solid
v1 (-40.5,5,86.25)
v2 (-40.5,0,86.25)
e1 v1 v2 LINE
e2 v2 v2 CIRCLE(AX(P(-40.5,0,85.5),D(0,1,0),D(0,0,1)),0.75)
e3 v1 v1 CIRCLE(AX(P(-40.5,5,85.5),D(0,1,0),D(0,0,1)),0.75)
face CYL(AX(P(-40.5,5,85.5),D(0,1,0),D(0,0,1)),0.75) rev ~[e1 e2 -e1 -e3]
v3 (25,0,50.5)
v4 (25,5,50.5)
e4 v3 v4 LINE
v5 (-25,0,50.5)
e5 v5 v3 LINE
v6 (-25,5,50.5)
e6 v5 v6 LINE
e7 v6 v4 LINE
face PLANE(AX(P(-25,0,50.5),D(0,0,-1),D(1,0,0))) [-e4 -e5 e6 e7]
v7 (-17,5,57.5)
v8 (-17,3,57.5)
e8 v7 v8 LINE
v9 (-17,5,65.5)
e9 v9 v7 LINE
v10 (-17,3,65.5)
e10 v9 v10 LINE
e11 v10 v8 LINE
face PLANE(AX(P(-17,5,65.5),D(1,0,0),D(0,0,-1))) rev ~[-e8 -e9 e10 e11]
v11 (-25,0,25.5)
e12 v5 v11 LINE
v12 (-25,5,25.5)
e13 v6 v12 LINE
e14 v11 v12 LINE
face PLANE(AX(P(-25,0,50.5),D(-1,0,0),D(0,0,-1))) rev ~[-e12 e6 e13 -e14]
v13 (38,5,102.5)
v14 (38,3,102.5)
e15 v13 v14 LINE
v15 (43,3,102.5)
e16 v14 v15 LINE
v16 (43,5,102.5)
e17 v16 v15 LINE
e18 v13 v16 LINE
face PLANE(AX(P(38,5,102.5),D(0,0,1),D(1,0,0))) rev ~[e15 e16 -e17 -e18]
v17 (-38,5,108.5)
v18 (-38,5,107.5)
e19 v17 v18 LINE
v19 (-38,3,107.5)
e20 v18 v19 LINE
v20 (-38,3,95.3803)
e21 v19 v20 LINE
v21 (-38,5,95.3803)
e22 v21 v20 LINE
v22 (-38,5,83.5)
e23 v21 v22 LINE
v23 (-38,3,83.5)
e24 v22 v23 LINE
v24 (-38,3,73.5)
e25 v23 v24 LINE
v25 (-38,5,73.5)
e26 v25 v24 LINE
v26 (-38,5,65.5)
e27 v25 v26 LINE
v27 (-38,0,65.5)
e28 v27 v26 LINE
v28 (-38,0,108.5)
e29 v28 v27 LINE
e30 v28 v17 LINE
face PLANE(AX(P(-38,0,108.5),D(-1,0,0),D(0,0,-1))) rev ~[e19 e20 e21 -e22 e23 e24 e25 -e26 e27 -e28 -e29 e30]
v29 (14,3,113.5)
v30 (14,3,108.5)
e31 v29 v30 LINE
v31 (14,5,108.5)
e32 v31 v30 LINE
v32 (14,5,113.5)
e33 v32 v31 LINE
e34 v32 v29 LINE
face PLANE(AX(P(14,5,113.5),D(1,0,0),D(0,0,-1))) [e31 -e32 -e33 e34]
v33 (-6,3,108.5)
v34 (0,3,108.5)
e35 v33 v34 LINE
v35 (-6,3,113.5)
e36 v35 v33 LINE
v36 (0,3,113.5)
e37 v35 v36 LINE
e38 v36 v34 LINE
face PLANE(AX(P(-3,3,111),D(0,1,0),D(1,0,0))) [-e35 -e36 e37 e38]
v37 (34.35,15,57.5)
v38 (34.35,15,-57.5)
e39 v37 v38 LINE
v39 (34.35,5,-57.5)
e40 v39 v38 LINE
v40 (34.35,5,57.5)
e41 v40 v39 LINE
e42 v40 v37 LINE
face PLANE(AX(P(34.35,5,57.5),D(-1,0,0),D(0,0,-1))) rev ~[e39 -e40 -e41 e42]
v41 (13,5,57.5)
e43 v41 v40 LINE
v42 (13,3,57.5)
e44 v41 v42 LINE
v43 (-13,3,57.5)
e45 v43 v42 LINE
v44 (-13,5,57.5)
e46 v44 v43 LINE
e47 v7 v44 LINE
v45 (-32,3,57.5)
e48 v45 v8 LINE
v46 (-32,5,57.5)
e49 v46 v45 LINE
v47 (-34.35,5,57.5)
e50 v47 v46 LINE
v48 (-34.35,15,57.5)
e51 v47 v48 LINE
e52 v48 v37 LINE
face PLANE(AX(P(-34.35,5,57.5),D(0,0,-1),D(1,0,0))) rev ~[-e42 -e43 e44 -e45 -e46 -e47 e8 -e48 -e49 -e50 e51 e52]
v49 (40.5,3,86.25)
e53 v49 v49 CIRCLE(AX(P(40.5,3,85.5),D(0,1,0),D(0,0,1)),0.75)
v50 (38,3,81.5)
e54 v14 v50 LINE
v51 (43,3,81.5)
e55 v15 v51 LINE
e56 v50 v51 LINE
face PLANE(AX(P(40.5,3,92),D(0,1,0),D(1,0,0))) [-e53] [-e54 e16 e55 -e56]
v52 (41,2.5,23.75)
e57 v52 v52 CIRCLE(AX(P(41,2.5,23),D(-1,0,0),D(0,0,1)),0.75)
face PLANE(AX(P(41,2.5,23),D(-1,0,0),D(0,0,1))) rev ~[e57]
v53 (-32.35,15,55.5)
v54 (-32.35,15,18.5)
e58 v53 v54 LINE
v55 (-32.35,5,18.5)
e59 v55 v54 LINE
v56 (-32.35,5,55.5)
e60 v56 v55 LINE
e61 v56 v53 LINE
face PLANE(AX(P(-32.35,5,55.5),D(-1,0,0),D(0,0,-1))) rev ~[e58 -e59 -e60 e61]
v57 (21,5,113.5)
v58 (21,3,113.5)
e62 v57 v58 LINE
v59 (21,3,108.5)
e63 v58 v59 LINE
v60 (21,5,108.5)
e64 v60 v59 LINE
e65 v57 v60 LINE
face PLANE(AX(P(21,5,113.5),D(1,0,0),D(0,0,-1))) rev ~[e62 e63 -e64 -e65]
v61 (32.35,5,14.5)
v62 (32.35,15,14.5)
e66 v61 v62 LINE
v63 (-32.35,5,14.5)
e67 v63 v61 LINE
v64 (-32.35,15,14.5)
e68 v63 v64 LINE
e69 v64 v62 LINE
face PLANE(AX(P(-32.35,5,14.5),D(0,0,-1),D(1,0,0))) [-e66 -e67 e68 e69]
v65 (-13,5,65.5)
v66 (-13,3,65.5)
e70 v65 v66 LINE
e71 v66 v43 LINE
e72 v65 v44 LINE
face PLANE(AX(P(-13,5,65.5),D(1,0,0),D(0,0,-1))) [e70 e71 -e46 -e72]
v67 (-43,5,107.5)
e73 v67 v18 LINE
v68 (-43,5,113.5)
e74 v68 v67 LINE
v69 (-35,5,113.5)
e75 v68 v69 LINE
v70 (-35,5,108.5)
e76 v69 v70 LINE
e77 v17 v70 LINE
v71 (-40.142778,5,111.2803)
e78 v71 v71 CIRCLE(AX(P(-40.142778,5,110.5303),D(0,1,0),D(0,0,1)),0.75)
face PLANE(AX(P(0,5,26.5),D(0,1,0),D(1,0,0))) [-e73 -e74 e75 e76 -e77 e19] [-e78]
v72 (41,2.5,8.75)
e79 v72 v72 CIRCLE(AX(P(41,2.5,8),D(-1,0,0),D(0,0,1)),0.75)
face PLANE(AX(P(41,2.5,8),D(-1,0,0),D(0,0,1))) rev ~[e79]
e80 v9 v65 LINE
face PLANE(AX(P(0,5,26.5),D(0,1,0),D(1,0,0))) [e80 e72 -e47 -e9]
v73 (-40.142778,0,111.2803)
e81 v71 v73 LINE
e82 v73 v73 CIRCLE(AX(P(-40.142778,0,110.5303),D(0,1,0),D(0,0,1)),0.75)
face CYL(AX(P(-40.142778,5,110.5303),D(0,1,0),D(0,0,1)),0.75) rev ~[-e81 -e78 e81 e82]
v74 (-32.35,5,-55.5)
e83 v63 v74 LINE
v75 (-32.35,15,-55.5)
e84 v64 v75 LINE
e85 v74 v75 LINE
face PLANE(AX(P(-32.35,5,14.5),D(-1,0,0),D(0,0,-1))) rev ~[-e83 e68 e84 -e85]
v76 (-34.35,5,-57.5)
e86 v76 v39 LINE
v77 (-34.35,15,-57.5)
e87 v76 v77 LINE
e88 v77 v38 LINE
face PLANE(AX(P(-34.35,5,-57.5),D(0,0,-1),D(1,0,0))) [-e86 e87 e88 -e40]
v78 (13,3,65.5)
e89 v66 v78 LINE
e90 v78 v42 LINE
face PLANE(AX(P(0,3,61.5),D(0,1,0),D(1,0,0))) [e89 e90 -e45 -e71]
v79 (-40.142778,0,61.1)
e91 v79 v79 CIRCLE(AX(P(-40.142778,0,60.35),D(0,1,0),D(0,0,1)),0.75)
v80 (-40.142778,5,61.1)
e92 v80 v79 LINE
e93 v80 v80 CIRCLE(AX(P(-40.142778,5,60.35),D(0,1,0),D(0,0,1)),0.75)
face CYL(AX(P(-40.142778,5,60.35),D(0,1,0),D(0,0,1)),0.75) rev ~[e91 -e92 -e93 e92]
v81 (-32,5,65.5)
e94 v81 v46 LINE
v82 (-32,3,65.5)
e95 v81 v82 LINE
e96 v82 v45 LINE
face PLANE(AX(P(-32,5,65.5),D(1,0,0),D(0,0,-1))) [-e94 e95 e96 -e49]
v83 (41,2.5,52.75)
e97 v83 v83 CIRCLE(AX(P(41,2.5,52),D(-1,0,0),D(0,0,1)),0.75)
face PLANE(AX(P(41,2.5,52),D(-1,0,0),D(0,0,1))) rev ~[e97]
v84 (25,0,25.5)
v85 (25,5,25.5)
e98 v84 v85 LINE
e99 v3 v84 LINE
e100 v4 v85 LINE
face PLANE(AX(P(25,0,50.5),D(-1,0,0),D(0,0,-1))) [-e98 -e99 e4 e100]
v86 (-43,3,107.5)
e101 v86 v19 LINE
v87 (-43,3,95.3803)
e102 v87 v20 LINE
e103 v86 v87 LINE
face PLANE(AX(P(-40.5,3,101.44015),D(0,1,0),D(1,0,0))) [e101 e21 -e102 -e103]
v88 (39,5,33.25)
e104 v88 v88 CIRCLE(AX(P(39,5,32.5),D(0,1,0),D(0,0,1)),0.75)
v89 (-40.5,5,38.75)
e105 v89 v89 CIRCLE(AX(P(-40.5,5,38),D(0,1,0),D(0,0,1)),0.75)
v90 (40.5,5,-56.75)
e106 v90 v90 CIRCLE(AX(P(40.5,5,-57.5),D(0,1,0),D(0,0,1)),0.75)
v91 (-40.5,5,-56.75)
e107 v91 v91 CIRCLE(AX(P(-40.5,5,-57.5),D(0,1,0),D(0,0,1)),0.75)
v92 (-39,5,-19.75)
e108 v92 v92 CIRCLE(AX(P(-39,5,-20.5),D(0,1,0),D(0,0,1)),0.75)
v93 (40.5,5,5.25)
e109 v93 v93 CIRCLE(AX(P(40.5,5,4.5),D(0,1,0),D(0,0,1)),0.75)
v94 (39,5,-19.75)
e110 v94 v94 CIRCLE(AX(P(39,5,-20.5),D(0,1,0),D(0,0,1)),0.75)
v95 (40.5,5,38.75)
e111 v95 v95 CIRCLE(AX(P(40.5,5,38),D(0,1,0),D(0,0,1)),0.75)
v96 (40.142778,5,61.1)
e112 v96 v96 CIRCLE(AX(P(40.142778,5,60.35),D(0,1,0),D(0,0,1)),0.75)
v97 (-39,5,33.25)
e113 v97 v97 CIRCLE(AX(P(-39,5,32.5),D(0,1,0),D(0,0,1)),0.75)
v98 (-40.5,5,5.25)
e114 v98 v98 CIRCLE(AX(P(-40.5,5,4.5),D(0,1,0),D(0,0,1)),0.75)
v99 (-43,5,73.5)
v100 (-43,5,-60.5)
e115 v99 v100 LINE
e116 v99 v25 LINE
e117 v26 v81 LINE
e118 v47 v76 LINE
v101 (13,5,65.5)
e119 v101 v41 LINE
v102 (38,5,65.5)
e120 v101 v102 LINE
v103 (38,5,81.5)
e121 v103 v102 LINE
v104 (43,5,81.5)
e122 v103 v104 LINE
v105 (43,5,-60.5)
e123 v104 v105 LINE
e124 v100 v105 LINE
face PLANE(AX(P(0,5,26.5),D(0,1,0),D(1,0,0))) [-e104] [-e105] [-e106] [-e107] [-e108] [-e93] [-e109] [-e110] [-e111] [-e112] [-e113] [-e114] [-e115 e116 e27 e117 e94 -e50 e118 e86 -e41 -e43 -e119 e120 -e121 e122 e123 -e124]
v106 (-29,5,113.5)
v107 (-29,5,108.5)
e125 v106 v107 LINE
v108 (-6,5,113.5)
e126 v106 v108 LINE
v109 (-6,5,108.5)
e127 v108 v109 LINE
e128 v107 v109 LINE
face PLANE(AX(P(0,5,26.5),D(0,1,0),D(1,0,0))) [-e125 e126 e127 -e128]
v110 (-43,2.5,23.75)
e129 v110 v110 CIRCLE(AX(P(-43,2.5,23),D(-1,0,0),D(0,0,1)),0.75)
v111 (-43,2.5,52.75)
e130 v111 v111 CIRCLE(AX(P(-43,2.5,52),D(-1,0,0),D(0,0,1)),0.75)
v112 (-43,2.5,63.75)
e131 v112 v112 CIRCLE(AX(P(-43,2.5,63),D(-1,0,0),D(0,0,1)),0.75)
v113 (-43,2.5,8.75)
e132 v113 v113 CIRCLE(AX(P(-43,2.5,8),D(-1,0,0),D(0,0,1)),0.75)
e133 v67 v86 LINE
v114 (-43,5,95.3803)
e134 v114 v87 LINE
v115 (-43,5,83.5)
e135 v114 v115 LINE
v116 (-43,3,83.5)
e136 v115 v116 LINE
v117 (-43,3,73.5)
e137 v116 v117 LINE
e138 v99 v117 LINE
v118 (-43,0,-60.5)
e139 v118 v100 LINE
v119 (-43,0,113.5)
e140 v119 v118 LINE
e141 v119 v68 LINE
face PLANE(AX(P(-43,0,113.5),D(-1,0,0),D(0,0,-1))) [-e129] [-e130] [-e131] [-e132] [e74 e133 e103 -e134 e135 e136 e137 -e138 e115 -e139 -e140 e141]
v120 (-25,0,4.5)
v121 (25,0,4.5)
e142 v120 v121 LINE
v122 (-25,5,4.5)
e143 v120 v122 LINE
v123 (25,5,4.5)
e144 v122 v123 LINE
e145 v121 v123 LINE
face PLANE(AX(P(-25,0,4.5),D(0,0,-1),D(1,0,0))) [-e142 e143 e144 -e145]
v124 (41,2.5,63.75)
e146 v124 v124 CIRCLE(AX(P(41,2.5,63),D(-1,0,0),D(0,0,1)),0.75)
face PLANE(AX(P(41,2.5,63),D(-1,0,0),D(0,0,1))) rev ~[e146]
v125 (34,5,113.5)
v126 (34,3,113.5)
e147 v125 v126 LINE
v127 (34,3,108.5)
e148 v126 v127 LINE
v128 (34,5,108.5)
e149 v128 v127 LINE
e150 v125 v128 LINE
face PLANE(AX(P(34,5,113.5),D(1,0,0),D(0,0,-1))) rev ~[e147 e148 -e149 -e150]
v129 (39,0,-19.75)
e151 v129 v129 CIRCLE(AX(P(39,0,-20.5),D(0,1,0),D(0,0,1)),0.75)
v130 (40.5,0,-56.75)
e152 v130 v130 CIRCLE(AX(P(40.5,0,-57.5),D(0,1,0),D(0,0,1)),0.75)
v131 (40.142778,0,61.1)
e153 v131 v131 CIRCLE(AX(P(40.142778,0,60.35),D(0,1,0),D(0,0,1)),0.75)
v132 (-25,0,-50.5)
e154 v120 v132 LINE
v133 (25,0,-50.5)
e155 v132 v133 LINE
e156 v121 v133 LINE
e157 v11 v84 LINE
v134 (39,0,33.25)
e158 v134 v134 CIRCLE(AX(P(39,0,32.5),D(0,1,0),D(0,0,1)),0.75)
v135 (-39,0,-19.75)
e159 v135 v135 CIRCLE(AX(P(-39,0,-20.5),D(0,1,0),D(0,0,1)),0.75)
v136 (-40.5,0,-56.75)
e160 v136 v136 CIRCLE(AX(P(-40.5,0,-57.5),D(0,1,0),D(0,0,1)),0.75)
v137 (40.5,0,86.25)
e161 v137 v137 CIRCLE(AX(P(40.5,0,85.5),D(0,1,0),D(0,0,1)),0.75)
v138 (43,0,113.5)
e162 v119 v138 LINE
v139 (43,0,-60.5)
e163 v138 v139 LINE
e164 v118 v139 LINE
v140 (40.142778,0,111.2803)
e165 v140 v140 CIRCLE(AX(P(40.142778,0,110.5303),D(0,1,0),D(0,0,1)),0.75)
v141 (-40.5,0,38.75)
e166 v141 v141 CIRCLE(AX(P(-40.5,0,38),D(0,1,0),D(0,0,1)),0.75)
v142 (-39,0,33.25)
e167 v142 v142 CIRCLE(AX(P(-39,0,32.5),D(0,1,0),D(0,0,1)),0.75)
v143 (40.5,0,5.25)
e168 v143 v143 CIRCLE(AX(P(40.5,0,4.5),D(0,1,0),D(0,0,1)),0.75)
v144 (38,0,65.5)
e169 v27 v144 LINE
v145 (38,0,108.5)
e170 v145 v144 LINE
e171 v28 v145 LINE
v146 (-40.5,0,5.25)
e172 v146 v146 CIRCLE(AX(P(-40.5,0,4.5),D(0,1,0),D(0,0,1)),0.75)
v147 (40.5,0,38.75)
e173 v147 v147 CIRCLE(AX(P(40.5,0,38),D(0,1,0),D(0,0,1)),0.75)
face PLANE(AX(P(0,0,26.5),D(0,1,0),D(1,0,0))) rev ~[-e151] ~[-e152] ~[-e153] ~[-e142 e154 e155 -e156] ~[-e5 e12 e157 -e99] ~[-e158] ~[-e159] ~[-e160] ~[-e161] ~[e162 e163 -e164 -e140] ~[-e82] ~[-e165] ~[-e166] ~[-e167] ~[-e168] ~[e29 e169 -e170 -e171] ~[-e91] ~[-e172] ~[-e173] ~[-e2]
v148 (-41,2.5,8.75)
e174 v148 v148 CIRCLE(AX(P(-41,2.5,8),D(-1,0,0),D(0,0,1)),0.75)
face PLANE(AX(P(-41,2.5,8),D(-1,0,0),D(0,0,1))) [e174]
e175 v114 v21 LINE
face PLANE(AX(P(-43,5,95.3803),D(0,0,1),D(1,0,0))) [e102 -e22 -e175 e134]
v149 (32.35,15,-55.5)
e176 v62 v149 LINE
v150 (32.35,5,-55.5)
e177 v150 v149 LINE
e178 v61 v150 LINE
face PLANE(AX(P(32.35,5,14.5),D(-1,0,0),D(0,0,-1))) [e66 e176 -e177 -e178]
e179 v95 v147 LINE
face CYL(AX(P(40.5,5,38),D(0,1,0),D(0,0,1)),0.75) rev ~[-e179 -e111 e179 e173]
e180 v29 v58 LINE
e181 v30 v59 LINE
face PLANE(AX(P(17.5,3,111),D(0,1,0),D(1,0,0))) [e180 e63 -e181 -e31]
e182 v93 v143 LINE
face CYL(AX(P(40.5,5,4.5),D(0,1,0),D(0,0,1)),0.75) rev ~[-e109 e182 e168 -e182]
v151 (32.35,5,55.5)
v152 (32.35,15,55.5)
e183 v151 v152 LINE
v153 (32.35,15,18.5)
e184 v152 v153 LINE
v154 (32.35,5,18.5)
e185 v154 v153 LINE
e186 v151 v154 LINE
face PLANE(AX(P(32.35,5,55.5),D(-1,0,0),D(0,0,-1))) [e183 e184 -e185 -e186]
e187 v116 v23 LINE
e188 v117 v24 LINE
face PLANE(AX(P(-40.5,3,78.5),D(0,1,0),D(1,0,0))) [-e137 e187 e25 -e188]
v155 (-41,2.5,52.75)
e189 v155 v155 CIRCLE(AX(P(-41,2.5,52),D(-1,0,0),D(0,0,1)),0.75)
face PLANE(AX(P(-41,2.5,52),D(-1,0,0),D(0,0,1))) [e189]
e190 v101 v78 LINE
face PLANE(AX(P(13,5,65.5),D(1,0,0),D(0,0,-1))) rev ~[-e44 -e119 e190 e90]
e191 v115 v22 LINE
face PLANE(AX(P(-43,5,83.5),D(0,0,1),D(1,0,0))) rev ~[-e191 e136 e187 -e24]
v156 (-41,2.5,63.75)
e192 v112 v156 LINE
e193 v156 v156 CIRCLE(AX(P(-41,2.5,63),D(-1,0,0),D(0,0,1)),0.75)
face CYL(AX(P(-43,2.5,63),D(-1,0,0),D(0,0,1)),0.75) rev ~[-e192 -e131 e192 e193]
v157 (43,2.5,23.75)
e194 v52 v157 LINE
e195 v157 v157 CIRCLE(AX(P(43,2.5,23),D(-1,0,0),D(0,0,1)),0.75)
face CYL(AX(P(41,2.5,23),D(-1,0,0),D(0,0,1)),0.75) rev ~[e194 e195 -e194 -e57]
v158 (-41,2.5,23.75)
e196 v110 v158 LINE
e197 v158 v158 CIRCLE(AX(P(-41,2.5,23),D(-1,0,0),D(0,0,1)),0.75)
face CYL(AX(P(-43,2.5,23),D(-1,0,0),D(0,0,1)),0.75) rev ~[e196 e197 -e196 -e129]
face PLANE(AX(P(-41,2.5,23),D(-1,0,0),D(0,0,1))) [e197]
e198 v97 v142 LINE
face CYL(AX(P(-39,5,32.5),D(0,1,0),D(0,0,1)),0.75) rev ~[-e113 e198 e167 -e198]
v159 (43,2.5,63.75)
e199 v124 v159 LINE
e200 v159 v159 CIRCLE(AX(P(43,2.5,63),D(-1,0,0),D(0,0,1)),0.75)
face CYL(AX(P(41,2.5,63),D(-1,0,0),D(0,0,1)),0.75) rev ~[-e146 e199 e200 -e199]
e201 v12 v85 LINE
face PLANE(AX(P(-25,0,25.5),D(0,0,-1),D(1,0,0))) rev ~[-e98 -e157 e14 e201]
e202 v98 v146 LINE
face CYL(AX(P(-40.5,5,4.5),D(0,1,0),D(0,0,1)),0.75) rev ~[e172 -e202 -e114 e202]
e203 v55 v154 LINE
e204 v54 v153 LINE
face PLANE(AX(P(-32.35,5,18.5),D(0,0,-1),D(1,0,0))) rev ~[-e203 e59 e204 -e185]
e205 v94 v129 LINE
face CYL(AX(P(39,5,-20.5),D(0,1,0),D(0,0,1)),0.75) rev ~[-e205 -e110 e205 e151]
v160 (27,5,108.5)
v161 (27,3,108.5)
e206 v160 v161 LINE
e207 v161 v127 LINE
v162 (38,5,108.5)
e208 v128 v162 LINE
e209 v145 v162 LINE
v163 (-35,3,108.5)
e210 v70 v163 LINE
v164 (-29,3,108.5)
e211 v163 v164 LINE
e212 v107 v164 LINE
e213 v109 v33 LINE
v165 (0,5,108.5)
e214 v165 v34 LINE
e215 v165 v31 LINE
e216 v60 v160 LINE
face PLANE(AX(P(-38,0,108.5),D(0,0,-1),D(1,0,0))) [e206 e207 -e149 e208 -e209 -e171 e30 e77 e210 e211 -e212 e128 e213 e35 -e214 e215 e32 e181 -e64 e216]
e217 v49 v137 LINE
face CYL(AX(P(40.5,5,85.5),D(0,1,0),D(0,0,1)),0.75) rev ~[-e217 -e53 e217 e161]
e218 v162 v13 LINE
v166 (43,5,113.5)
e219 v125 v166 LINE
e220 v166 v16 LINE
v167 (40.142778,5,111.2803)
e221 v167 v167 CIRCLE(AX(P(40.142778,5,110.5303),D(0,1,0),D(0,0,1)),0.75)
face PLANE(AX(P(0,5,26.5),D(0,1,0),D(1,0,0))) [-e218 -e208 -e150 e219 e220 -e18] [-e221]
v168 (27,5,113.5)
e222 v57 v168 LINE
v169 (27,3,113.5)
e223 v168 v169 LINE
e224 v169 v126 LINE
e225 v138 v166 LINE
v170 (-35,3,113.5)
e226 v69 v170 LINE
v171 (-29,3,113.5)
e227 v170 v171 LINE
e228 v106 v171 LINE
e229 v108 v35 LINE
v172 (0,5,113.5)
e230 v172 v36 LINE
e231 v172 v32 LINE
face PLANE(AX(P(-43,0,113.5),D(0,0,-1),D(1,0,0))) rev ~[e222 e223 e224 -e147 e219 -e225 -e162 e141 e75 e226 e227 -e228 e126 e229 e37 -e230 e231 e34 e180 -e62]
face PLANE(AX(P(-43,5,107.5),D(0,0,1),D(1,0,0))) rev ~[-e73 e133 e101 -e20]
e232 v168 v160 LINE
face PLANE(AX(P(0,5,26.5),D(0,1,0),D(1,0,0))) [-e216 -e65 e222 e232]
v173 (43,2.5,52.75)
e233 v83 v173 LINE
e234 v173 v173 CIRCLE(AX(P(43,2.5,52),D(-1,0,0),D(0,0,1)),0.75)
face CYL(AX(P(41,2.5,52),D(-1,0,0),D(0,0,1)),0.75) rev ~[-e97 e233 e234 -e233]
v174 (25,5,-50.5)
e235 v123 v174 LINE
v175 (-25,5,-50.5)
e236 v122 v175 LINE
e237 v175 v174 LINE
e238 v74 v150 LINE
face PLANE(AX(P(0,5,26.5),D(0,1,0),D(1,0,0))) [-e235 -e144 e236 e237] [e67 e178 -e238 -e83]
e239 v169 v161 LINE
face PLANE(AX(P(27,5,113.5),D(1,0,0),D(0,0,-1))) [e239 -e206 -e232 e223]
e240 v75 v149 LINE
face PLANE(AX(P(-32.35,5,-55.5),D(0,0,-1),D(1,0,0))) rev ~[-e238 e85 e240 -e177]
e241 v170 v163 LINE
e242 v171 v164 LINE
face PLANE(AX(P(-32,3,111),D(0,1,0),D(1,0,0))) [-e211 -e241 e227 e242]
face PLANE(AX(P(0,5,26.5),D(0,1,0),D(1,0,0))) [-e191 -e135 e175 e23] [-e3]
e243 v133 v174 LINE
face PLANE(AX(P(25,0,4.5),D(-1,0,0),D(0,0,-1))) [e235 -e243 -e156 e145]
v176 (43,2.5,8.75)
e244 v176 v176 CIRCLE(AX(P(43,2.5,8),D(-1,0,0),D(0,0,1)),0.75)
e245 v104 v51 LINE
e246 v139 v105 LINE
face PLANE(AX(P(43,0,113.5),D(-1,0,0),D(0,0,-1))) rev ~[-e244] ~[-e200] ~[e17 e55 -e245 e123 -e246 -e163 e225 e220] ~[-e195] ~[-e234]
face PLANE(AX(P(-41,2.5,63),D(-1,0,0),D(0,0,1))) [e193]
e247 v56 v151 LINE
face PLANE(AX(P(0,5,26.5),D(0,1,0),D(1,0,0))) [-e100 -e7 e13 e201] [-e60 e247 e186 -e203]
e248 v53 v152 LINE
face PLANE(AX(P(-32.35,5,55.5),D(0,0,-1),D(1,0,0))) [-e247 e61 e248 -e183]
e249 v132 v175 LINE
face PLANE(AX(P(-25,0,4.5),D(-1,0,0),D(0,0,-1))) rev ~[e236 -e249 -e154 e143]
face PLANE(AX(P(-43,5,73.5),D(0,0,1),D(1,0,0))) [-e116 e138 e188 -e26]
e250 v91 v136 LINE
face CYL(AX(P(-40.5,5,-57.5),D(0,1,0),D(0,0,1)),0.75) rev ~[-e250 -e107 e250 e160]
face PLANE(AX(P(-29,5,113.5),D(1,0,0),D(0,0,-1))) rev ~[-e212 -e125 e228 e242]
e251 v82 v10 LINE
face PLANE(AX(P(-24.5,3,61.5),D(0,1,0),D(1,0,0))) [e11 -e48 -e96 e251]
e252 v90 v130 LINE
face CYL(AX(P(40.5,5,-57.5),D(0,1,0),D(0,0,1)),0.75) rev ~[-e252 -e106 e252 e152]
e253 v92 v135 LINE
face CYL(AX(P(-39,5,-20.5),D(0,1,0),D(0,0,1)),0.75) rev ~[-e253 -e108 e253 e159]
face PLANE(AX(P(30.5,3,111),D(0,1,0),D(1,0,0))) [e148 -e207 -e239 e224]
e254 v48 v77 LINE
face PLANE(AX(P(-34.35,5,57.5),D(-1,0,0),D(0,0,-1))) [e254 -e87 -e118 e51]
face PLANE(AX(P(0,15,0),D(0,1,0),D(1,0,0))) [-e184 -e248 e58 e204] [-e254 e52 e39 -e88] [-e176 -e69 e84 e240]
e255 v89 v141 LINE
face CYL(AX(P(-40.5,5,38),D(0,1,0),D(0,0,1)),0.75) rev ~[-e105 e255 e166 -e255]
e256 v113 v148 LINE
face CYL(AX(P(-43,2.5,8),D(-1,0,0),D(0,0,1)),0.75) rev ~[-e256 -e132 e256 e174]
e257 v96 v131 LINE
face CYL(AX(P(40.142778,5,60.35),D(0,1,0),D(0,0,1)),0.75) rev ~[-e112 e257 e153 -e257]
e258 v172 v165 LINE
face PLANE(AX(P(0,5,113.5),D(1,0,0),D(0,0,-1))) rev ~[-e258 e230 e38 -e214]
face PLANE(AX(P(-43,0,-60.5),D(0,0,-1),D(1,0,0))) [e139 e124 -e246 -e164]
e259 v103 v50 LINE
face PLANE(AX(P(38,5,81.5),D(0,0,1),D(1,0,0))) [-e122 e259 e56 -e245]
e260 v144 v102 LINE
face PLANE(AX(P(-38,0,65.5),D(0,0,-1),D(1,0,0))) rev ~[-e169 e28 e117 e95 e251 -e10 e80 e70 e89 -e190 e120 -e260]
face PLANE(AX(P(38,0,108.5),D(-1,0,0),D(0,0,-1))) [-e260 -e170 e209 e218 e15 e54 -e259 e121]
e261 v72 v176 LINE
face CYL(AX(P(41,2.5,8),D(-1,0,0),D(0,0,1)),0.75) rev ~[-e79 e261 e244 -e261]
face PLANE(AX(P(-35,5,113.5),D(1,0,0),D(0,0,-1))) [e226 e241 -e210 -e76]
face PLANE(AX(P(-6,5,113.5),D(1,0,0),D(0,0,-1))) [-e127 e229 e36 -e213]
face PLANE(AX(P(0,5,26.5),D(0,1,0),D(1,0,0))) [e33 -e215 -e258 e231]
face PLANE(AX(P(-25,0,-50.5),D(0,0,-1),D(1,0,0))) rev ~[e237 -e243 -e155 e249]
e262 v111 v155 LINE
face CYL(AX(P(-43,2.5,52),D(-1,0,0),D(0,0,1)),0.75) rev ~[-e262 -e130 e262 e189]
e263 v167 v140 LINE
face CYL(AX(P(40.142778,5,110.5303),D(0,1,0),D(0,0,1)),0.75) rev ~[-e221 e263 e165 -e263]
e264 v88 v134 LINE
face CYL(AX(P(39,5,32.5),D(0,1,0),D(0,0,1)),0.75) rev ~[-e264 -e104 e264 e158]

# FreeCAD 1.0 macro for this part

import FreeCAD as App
import Part
import Sketcher
from FreeCAD import Vector

doc = App.newDocument("Part")
body = doc.addObject("PartDesign::Body", "Body")

sketch1 = doc.addObject("Sketcher::SketchObject", "Sketch")
body.addObject(sketch1)
sketch1.AttachmentSupport = (doc.XZ_Plane, [""])
sketch1.MapMode = "FlatFace"
sketch1.addGeometry([
    Part.LineSegment(Vector(-43, -60, 0), Vector(-43, 114, 0)),
    Part.LineSegment(Vector(-43, 114, 0), Vector(43, 114, 0)),
    Part.LineSegment(Vector(43, 114, 0), Vector(43, -60, 0)),
    Part.LineSegment(Vector(43, -60, 0), Vector(-43, -60, 0)),
    Part.LineSegment(Vector(38, 108, 0), Vector(-38, 108, 0)),
    Part.LineSegment(Vector(-38, 108, 0), Vector(-38, 66, 0)),
    Part.LineSegment(Vector(-38, 66, 0), Vector(38, 66, 0)),
    Part.LineSegment(Vector(38, 66, 0), Vector(38, 108, 0)),
    Part.LineSegment(Vector(25, 50, 0), Vector(-25, 50, 0)),
    Part.LineSegment(Vector(-25, 50, 0), Vector(-25, 26, 0)),
    Part.LineSegment(Vector(-25, 26, 0), Vector(25, 26, 0)),
    Part.LineSegment(Vector(25, 26, 0), Vector(25, 50, 0)),
    Part.LineSegment(Vector(25, 4, 0), Vector(-25, 4, 0)),
    Part.LineSegment(Vector(-25, 4, 0), Vector(-25, -50, 0)),
    Part.LineSegment(Vector(-25, -50, 0), Vector(25, -50, 0)),
    Part.LineSegment(Vector(25, -50, 0), Vector(25, 4, 0)),
], False)
sketch1.addConstraint([
    Sketcher.Constraint("Coincident", 0, 2, 1, 1),
    Sketcher.Constraint("Coincident", 1, 2, 2, 1),
    Sketcher.Constraint("Coincident", 2, 2, 3, 1),
    Sketcher.Constraint("Coincident", 3, 2, 0, 1),
    Sketcher.Constraint("Coincident", 4, 2, 5, 1),
    Sketcher.Constraint("Coincident", 5, 2, 6, 1),
    Sketcher.Constraint("Coincident", 6, 2, 7, 1),
    Sketcher.Constraint("Coincident", 7, 2, 4, 1),
    Sketcher.Constraint("Coincident", 8, 2, 9, 1),
    Sketcher.Constraint("Coincident", 9, 2, 10, 1),
    Sketcher.Constraint("Coincident", 10, 2, 11, 1),
    Sketcher.Constraint("Coincident", 11, 2, 8, 1),
    Sketcher.Constraint("Coincident", 12, 2, 13, 1),
    Sketcher.Constraint("Coincident", 13, 2, 14, 1),
    Sketcher.Constraint("Coincident", 14, 2, 15, 1),
    Sketcher.Constraint("Coincident", 15, 2, 12, 1),
    Sketcher.Constraint("Vertical", 0),
    Sketcher.Constraint("Horizontal", 1),
    Sketcher.Constraint("Vertical", 2),
    Sketcher.Constraint("Horizontal", 3),
    Sketcher.Constraint("Horizontal", 4),
    Sketcher.Constraint("Vertical", 5),
    Sketcher.Constraint("Horizontal", 6),
    Sketcher.Constraint("Vertical", 7),
    Sketcher.Constraint("Horizontal", 8),
    Sketcher.Constraint("Vertical", 9),
    Sketcher.Constraint("Horizontal", 10),
    Sketcher.Constraint("Vertical", 11),
    Sketcher.Constraint("Horizontal", 12),
    Sketcher.Constraint("Vertical", 13),
    Sketcher.Constraint("Horizontal", 14),
    Sketcher.Constraint("Vertical", 15),
    Sketcher.Constraint("Symmetric", 11, 2, 13, 2, -1, 1),
    Sketcher.Constraint("Vertical", 9, 2, 12, 2),
    Sketcher.Constraint("Vertical", 11, 2, 14, 2),
    Sketcher.Constraint("DistanceX", 1, 1, 1, 2, 86.0),
    Sketcher.Constraint("DistanceX", 4, 2, 4, 1, 76.0),
    Sketcher.Constraint("DistanceX", 8, 2, 8, 1, 50.0),
    Sketcher.Constraint("DistanceY", 0, 1, 0, 2, 174.0),
    Sketcher.Constraint("DistanceY", 5, 2, 5, 1, 43.0),
    Sketcher.Constraint("DistanceY", 9, 2, 9, 1, 25.0),
    Sketcher.Constraint("DistanceY", 13, 2, 13, 1, 55.0),
    Sketcher.Constraint("DistanceX", 0, 2, -1, 1, 43.0),
    Sketcher.Constraint("DistanceX", 4, 2, -1, 1, 38.0),
    Sketcher.Constraint("DistanceY", 4, 2, 0, 2, 5.0),
    Sketcher.Constraint("DistanceY", 8, 2, 5, 2, 15.0),
    Sketcher.Constraint("DistanceY", 12, 2, 9, 2, 21.0),
])
pad1 = doc.addObject("PartDesign::Pad", "Pad")
body.addObject(pad1)
pad1.Profile = sketch1
pad1.Length = 5
pad1.Reversed = True

sketch2 = doc.addObject("Sketcher::SketchObject", "Sketch001")
body.addObject(sketch2)
sketch2.AttachmentSupport = (doc.XZ_Plane, [""])
sketch2.MapMode = "FlatFace"
sketch2.AttachmentOffset = App.Placement(Vector(0, 0, -5), App.Rotation())
sketch2.addGeometry([
    Part.LineSegment(Vector(-34, -58, 0), Vector(-34, 58, 0)),
    Part.LineSegment(Vector(-34, 58, 0), Vector(34, 58, 0)),
    Part.LineSegment(Vector(34, 58, 0), Vector(34, -58, 0)),
    Part.LineSegment(Vector(34, -58, 0), Vector(-34, -58, 0)),
    Part.LineSegment(Vector(32, 56, 0), Vector(-32, 56, 0)),
    Part.LineSegment(Vector(-32, 56, 0), Vector(-32, 18, 0)),
    Part.LineSegment(Vector(-32, 18, 0), Vector(32, 18, 0)),
    Part.LineSegment(Vector(32, 18, 0), Vector(32, 56, 0)),
    Part.LineSegment(Vector(32, 14, 0), Vector(-32, 14, 0)),
    Part.LineSegment(Vector(-32, 14, 0), Vector(-32, -56, 0)),
    Part.LineSegment(Vector(-32, -56, 0), Vector(32, -56, 0)),
    Part.LineSegment(Vector(32, -56, 0), Vector(32, 14, 0)),
], False)
sketch2.addConstraint([
    Sketcher.Constraint("Coincident", 0, 2, 1, 1),
    Sketcher.Constraint("Coincident", 1, 2, 2, 1),
    Sketcher.Constraint("Coincident", 2, 2, 3, 1),
    Sketcher.Constraint("Coincident", 3, 2, 0, 1),
    Sketcher.Constraint("Coincident", 4, 2, 5, 1),
    Sketcher.Constraint("Coincident", 5, 2, 6, 1),
    Sketcher.Constraint("Coincident", 6, 2, 7, 1),
    Sketcher.Constraint("Coincident", 7, 2, 4, 1),
    Sketcher.Constraint("Coincident", 8, 2, 9, 1),
    Sketcher.Constraint("Coincident", 9, 2, 10, 1),
    Sketcher.Constraint("Coincident", 10, 2, 11, 1),
    Sketcher.Constraint("Coincident", 11, 2, 8, 1),
    Sketcher.Constraint("Vertical", 0),
    Sketcher.Constraint("Horizontal", 1),
    Sketcher.Constraint("Vertical", 2),
    Sketcher.Constraint("Horizontal", 3),
    Sketcher.Constraint("Horizontal", 4),
    Sketcher.Constraint("Vertical", 5),
    Sketcher.Constraint("Horizontal", 6),
    Sketcher.Constraint("Vertical", 7),
    Sketcher.Constraint("Horizontal", 8),
    Sketcher.Constraint("Vertical", 9),
    Sketcher.Constraint("Horizontal", 10),
    Sketcher.Constraint("Vertical", 11),
    Sketcher.Constraint("Symmetric", 0, 2, 2, 2, -1, 1),
    Sketcher.Constraint("Symmetric", 7, 2, 9, 2, -1, 1),
    Sketcher.Constraint("Vertical", 5, 2, 8, 2),
    Sketcher.Constraint("Vertical", 7, 2, 10, 2),
    Sketcher.Constraint("DistanceY", 0, 1, 0, 2, 115.0),
    Sketcher.Constraint("DistanceY", 5, 2, 5, 1, 37.0),
    Sketcher.Constraint("DistanceY", 9, 2, 9, 1, 70.0),
    Sketcher.Constraint("DistanceX", 1, 1, 1, 2, 68.7),
    Sketcher.Constraint("DistanceX", 4, 2, 4, 1, 64.7),
    Sketcher.Constraint("DistanceY", 4, 2, 0, 2, 2.0),
])
pad2 = doc.addObject("PartDesign::Pad", "Pad001")
body.addObject(pad2)
pad2.Profile = sketch2
pad2.Length = 10
pad2.Reversed = True

sketch3 = doc.addObject("Sketcher::SketchObject", "Sketch002")
body.addObject(sketch3)
sketch3.AttachmentSupport = (doc.XZ_Plane, [""])
sketch3.MapMode = "FlatFace"
sketch3.AttachmentOffset = App.Placement(Vector(0, 0, -5), App.Rotation())
sketch3.addGeometry([
    Part.Circle(Vector(-39, -20.5, 0), Vector(0, 0, 1), 0.8),
    Part.Circle(Vector(39, -20.5, 0), Vector(0, 0, 1), 0.8),
    Part.Circle(Vector(-39, 32.5, 0), Vector(0, 0, 1), 0.8),
    Part.Circle(Vector(39, 32.5, 0), Vector(0, 0, 1), 0.8),
    Part.Circle(Vector(-40.1, 60.4, 0), Vector(0, 0, 1), 0.8),
    Part.Circle(Vector(40.1, 60.4, 0), Vector(0, 0, 1), 0.8),
    Part.Circle(Vector(-40.1, 110.5, 0), Vector(0, 0, 1), 0.8),
    Part.Circle(Vector(40.1, 110.5, 0), Vector(0, 0, 1), 0.8),
    Part.Circle(Vector(-40.5, -57.5, 0), Vector(0, 0, 1), 0.8),
    Part.Circle(Vector(-40.5, 38, 0), Vector(0, 0, 1), 0.8),
    Part.Circle(Vector(-40.5, 85.5, 0), Vector(0, 0, 1), 0.8),
    Part.Circle(Vector(40.5, -57.5, 0), Vector(0, 0, 1), 0.8),
    Part.Circle(Vector(40.5, 38, 0), Vector(0, 0, 1), 0.8),
    Part.Circle(Vector(40.5, 85.5, 0), Vector(0, 0, 1), 0.8),
    Part.Circle(Vector(-40.5, 4.5, 0), Vector(0, 0, 1), 0.8),
    Part.Circle(Vector(40.5, 4.5, 0), Vector(0, 0, 1), 0.8),
], False)
sketch3.addConstraint([
    Sketcher.Constraint("Equal", 0, 1),
    Sketcher.Constraint("Equal", 1, 2),
    Sketcher.Constraint("Equal", 2, 3),
    Sketcher.Constraint("Equal", 3, 4),
    Sketcher.Constraint("Equal", 4, 5),
    Sketcher.Constraint("Equal", 5, 6),
    Sketcher.Constraint("Equal", 6, 7),
    Sketcher.Constraint("Equal", 7, 8),
    Sketcher.Constraint("Equal", 8, 9),
    Sketcher.Constraint("Equal", 9, 10),
    Sketcher.Constraint("Equal", 10, 11),
    Sketcher.Constraint("Equal", 11, 12),
    Sketcher.Constraint("Equal", 12, 13),
    Sketcher.Constraint("Equal", 13, 14),
    Sketcher.Constraint("Equal", 14, 15),
    Sketcher.Constraint("Symmetric", 0, 3, 1, 3, -2),
    Sketcher.Constraint("Symmetric", 2, 3, 3, 3, -2),
    Sketcher.Constraint("Symmetric", 4, 3, 5, 3, -2),
    Sketcher.Constraint("Symmetric", 6, 3, 7, 3, -2),
    Sketcher.Constraint("Symmetric", 8, 3, 11, 3, -2),
    Sketcher.Constraint("Symmetric", 9, 3, 12, 3, -2),
    Sketcher.Constraint("Symmetric", 10, 3, 13, 3, -2),
    Sketcher.Constraint("Symmetric", 14, 3, 15, 3, -2),
    Sketcher.Constraint("Vertical", 0, 3, 2, 3),
    Sketcher.Constraint("Vertical", 4, 3, 6, 3),
    Sketcher.Constraint("Vertical", 8, 3, 9, 3),
    Sketcher.Constraint("Vertical", 9, 3, 10, 3),
    Sketcher.Constraint("Vertical", 10, 3, 14, 3),
    Sketcher.Constraint("Diameter", 0, 1.5),
    Sketcher.Constraint("DistanceX", 0, 3, -1, 1, 39.0),
    Sketcher.Constraint("DistanceY", -1, 1, 9, 3, 38.0),
    Sketcher.Constraint("DistanceY", 0, 3, 2, 3, 53.0),
    Sketcher.Constraint("DistanceY", 8, 3, 0, 3, 37.0),
    Sketcher.Constraint("DistanceY", 2, 3, 10, 3, 53.0),
    Sketcher.Constraint("DistanceX", 8, 3, 11, 3, 81.0),
    Sketcher.Constraint("DistanceY", 0, 3, 14, 3, 25.0),
    Sketcher.Constraint("DistanceY", 0, 3, -1, 1, 20.5),
    Sketcher.Constraint("DistanceY", -1, 1, 4, 3, 60.35),
    Sketcher.Constraint("DistanceY", -1, 1, 6, 3, 110.5303),
    Sketcher.Constraint("DistanceX", 4, 3, -1, 1, 40.142778),
])
pocket1 = doc.addObject("PartDesign::Pocket", "Pocket")
body.addObject(pocket1)
pocket1.Profile = sketch3
pocket1.Type = "ThroughAll"
pocket1.Reversed = True

sketch4 = doc.addObject("Sketcher::SketchObject", "Sketch003")
body.addObject(sketch4)
sketch4.AttachmentSupport = (doc.XZ_Plane, [""])
sketch4.MapMode = "FlatFace"
sketch4.AttachmentOffset = App.Placement(Vector(0, 0, -5), App.Rotation())
sketch4.addGeometry([
    Part.LineSegment(Vector(-32, 58, 0), Vector(-32, 66, 0)),
    Part.LineSegment(Vector(-32, 66, 0), Vector(-17, 66, 0)),
    Part.LineSegment(Vector(-17, 66, 0), Vector(-17, 58, 0)),
    Part.LineSegment(Vector(-17, 58, 0), Vector(-32, 58, 0)),
    Part.LineSegment(Vector(-13, 58, 0), Vector(-13, 66, 0)),
    Part.LineSegment(Vector(-13, 66, 0), Vector(13, 66, 0)),
    Part.LineSegment(Vector(13, 66, 0), Vector(13, 58, 0)),
    Part.LineSegment(Vector(13, 58, 0), Vector(-13, 58, 0)),
    Part.LineSegment(Vector(-43, 74, 0), Vector(-43, 84, 0)),
    Part.LineSegment(Vector(-43, 84, 0), Vector(-38, 84, 0)),
    Part.LineSegment(Vector(-38, 84, 0), Vector(-38, 74, 0)),
    Part.LineSegment(Vector(-38, 74, 0), Vector(-43, 74, 0)),
    Part.LineSegment(Vector(-43, 95, 0), Vector(-43, 108, 0)),
    Part.LineSegment(Vector(-43, 108, 0), Vector(-38, 108, 0)),
    Part.LineSegment(Vector(-38, 108, 0), Vector(-38, 95, 0)),
    Part.LineSegment(Vector(-38, 95, 0), Vector(-43, 95, 0)),
    Part.LineSegment(Vector(-35, 108, 0), Vector(-35, 114, 0)),
    Part.LineSegment(Vector(-35, 114, 0), Vector(-29, 114, 0)),
    Part.LineSegment(Vector(-29, 114, 0), Vector(-29, 108, 0)),
    Part.LineSegment(Vector(-29, 108, 0), Vector(-35, 108, 0)),
    Part.LineSegment(Vector(-6, 108, 0), Vector(-6, 114, 0)),
    Part.LineSegment(Vector(-6, 114, 0), Vector(0, 114, 0)),
    Part.LineSegment(Vector(0, 114, 0), Vector(0, 108, 0)),
    Part.LineSegment(Vector(0, 108, 0), Vector(-6, 108, 0)),
    Part.LineSegment(Vector(14, 108, 0), Vector(14, 114, 0)),
    Part.LineSegment(Vector(14, 114, 0), Vector(21, 114, 0)),
    Part.LineSegment(Vector(21, 114, 0), Vector(21, 108, 0)),
    Part.LineSegment(Vector(21, 108, 0), Vector(14, 108, 0)),
    Part.LineSegment(Vector(27, 108, 0), Vector(27, 114, 0)),
    Part.LineSegment(Vector(27, 114, 0), Vector(34, 114, 0)),
    Part.LineSegment(Vector(34, 114, 0), Vector(34, 108, 0)),
    Part.LineSegment(Vector(34, 108, 0), Vector(27, 108, 0)),
    Part.LineSegment(Vector(38, 82, 0), Vector(38, 102, 0)),
    Part.LineSegment(Vector(38, 102, 0), Vector(43, 102, 0)),
    Part.LineSegment(Vector(43, 102, 0), Vector(43, 82, 0)),
    Part.LineSegment(Vector(43, 82, 0), Vector(38, 82, 0)),
], False)
sketch4.addConstraint([
    Sketcher.Constraint("Coincident", 0, 2, 1, 1),
    Sketcher.Constraint("Coincident", 1, 2, 2, 1),
    Sketcher.Constraint("Coincident", 2, 2, 3, 1),
    Sketcher.Constraint("Coincident", 3, 2, 0, 1),
    Sketcher.Constraint("Coincident", 4, 2, 5, 1),
    Sketcher.Constraint("Coincident", 5, 2, 6, 1),
    Sketcher.Constraint("Coincident", 6, 2, 7, 1),
    Sketcher.Constraint("Coincident", 7, 2, 4, 1),
    Sketcher.Constraint("Coincident", 8, 2, 9, 1),
    Sketcher.Constraint("Coincident", 9, 2, 10, 1),
    Sketcher.Constraint("Coincident", 10, 2, 11, 1),
    Sketcher.Constraint("Coincident", 11, 2, 8, 1),
    Sketcher.Constraint("Coincident", 12, 2, 13, 1),
    Sketcher.Constraint("Coincident", 13, 2, 14, 1),
    Sketcher.Constraint("Coincident", 14, 2, 15, 1),
    Sketcher.Constraint("Coincident", 15, 2, 12, 1),
    Sketcher.Constraint("Coincident", 16, 2, 17, 1),
    Sketcher.Constraint("Coincident", 17, 2, 18, 1),
    Sketcher.Constraint("Coincident", 18, 2, 19, 1),
    Sketcher.Constraint("Coincident", 19, 2, 16, 1),
    Sketcher.Constraint("Coincident", 20, 2, 21, 1),
    Sketcher.Constraint("Coincident", 21, 2, 22, 1),
    Sketcher.Constraint("Coincident", 22, 2, 23, 1),
    Sketcher.Constraint("Coincident", 23, 2, 20, 1),
    Sketcher.Constraint("Coincident", 24, 2, 25, 1),
    Sketcher.Constraint("Coincident", 25, 2, 26, 1),
    Sketcher.Constraint("Coincident", 26, 2, 27, 1),
    Sketcher.Constraint("Coincident", 27, 2, 24, 1),
    Sketcher.Constraint("Coincident", 28, 2, 29, 1),
    Sketcher.Constraint("Coincident", 29, 2, 30, 1),
    Sketcher.Constraint("Coincident", 30, 2, 31, 1),
    Sketcher.Constraint("Coincident", 31, 2, 28, 1),
    Sketcher.Constraint("Coincident", 32, 2, 33, 1),
    Sketcher.Constraint("Coincident", 33, 2, 34, 1),
    Sketcher.Constraint("Coincident", 34, 2, 35, 1),
    Sketcher.Constraint("Coincident", 35, 2, 32, 1),
    Sketcher.Constraint("Vertical", 0),
    Sketcher.Constraint("Horizontal", 1),
    Sketcher.Constraint("Vertical", 2),
    Sketcher.Constraint("Horizontal", 3),
    Sketcher.Constraint("Vertical", 4),
    Sketcher.Constraint("Horizontal", 5),
    Sketcher.Constraint("Vertical", 6),
    Sketcher.Constraint("Horizontal", 7),
    Sketcher.Constraint("Vertical", 8),
    Sketcher.Constraint("Horizontal", 9),
    Sketcher.Constraint("Vertical", 10),
    Sketcher.Constraint("Horizontal", 11),
    Sketcher.Constraint("Vertical", 12),
    Sketcher.Constraint("Horizontal", 13),
    Sketcher.Constraint("Vertical", 14),
    Sketcher.Constraint("Horizontal", 15),
    Sketcher.Constraint("Vertical", 16),
    Sketcher.Constraint("Horizontal", 17),
    Sketcher.Constraint("Vertical", 18),
    Sketcher.Constraint("Horizontal", 19),
    Sketcher.Constraint("Vertical", 20),
    Sketcher.Constraint("Horizontal", 21),
    Sketcher.Constraint("Vertical", 22),
    Sketcher.Constraint("Horizontal", 23),
    Sketcher.Constraint("Vertical", 24),
    Sketcher.Constraint("Horizontal", 25),
    Sketcher.Constraint("Vertical", 26),
    Sketcher.Constraint("Horizontal", 27),
    Sketcher.Constraint("Vertical", 28),
    Sketcher.Constraint("Horizontal", 29),
    Sketcher.Constraint("Vertical", 30),
    Sketcher.Constraint("Horizontal", 31),
    Sketcher.Constraint("Vertical", 32),
    Sketcher.Constraint("Horizontal", 33),
    Sketcher.Constraint("Vertical", 34),
    Sketcher.Constraint("Horizontal", 35),
    Sketcher.Constraint("PointOnObject", 21, 2, -2),
    Sketcher.Constraint("Horizontal", 1, 2, 4, 2),
    Sketcher.Constraint("Horizontal", 3, 2, 6, 2),
    Sketcher.Constraint("Horizontal", 17, 2, 20, 2),
    Sketcher.Constraint("Horizontal", 19, 2, 22, 2),
    Sketcher.Constraint("Horizontal", 21, 2, 24, 2),
    Sketcher.Constraint("Horizontal", 23, 2, 26, 2),
    Sketcher.Constraint("Horizontal", 25, 2, 28, 2),
    Sketcher.Constraint("Horizontal", 27, 2, 30, 2),
    Sketcher.Constraint("Vertical", 11, 2, 12, 2),
    Sketcher.Constraint("Vertical", 10, 2, 13, 2),
    Sketcher.Constraint("Equal", 19, 21),
    Sketcher.Constraint("Equal", 27, 29),
    Sketcher.Constraint("Equal", 15, 33),
    Sketcher.Constraint("Equal", 35, 16),
    Sketcher.Constraint("DistanceX", 1, 1, 1, 2, 15.0),
    Sketcher.Constraint("DistanceX", 5, 1, 5, 2, 26.0),
    Sketcher.Constraint("DistanceX", 9, 1, 9, 2, 5.0),
    Sketcher.Constraint("DistanceX", 17, 1, 17, 2, 6.0),
    Sketcher.Constraint("DistanceX", 25, 1, 25, 2, 7.0),
    Sketcher.Constraint("DistanceY", 0, 1, 0, 2, 8.0),
    Sketcher.Constraint("DistanceY", 8, 1, 8, 2, 10.0),
    Sketcher.Constraint("DistanceY", 32, 1, 32, 2, 21.0),
    Sketcher.Constraint("DistanceX", 0, 2, -1, 1, 32.0),
    Sketcher.Constraint("DistanceX", 4, 2, -1, 1, 13.0),
    Sketcher.Constraint("DistanceX", 8, 2, -1, 1, 43.0),
    Sketcher.Constraint("DistanceX", 16, 2, -1, 1, 35.0),
    Sketcher.Constraint("DistanceX", -1, 1, 24, 2, 14.0),
    Sketcher.Constraint("DistanceX", -1, 1, 28, 2, 27.0),
    Sketcher.Constraint("DistanceX", -1, 1, 32, 2, 38.0),
    Sketcher.Constraint("DistanceY", 0, 2, 8, 2, 18.0),
    Sketcher.Constraint("DistanceY", 8, 2, 12, 2, 24.0),
    Sketcher.Constraint("DistanceY", 13, 2, 16, 2, 6.0),
    Sketcher.Constraint("DistanceY", 32, 2, 30, 2, 6.0),
    Sketcher.Constraint("DistanceY", -1, 1, 0, 2, 65.5),
    Sketcher.Constraint("DistanceY", 12, 1, 12, 2, 12.1197),
])
pocket2 = doc.addObject("PartDesign::Pocket", "Pocket001")
body.addObject(pocket2)
pocket2.Profile = sketch4
pocket2.Length = 2
pocket2.Reversed = True

sketch5 = doc.addObject("Sketcher::SketchObject", "Sketch004")
body.addObject(sketch5)
sketch5.AttachmentSupport = (doc.YZ_Plane, [""])
sketch5.MapMode = "FlatFace"
sketch5.AttachmentOffset = App.Placement(Vector(0, 0, -43), App.Rotation())
sketch5.addGeometry([
    Part.Circle(Vector(2.5, 8, 0), Vector(0, 0, 1), 0.8),
    Part.Circle(Vector(2.5, 23, 0), Vector(0, 0, 1), 0.8),
    Part.Circle(Vector(2.5, 52, 0), Vector(0, 0, 1), 0.8),
    Part.Circle(Vector(2.5, 63, 0), Vector(0, 0, 1), 0.8),
], False)
sketch5.addConstraint([
    Sketcher.Constraint("Equal", 0, 1),
    Sketcher.Constraint("Equal", 1, 2),
    Sketcher.Constraint("Equal", 2, 3),
    Sketcher.Constraint("Vertical", 0, 3, 1, 3),
    Sketcher.Constraint("Vertical", 1, 3, 2, 3),
    Sketcher.Constraint("Vertical", 2, 3, 3, 3),
    Sketcher.Constraint("Diameter", 0, 1.5),
    Sketcher.Constraint("DistanceY", -1, 1, 0, 3, 8.0),
    Sketcher.Constraint("DistanceY", -1, 1, 1, 3, 23.0),
    Sketcher.Constraint("DistanceY", -1, 1, 2, 3, 52.0),
    Sketcher.Constraint("DistanceY", -1, 1, 3, 3, 63.0),
    Sketcher.Constraint("DistanceX", -1, 1, 0, 3, 2.5),
])
pocket3 = doc.addObject("PartDesign::Pocket", "Pocket002")
body.addObject(pocket3)
pocket3.Profile = sketch5
pocket3.Length = 2
pocket3.Reversed = True

sketch6 = doc.addObject("Sketcher::SketchObject", "Sketch005")
body.addObject(sketch6)
sketch6.AttachmentSupport = (doc.YZ_Plane, [""])
sketch6.MapMode = "FlatFace"
sketch6.AttachmentOffset = App.Placement(Vector(0, 0, 41), App.Rotation())
sketch6.addGeometry([
    Part.Circle(Vector(2.5, 8, 0), Vector(0, 0, 1), 0.8),
    Part.Circle(Vector(2.5, 23, 0), Vector(0, 0, 1), 0.8),
    Part.Circle(Vector(2.5, 52, 0), Vector(0, 0, 1), 0.8),
    Part.Circle(Vector(2.5, 63, 0), Vector(0, 0, 1), 0.8),
], False)
sketch6.addConstraint([
    Sketcher.Constraint("Equal", 0, 1),
    Sketcher.Constraint("Equal", 1, 2),
    Sketcher.Constraint("Equal", 2, 3),
    Sketcher.Constraint("Vertical", 0, 3, 1, 3),
    Sketcher.Constraint("Vertical", 1, 3, 2, 3),
    Sketcher.Constraint("Vertical", 2, 3, 3, 3),
    Sketcher.Constraint("Diameter", 0, 1.5),
    Sketcher.Constraint("DistanceY", -1, 1, 0, 3, 8.0),
    Sketcher.Constraint("DistanceY", -1, 1, 1, 3, 23.0),
    Sketcher.Constraint("DistanceY", -1, 1, 2, 3, 52.0),
    Sketcher.Constraint("DistanceY", -1, 1, 3, 3, 63.0),
    Sketcher.Constraint("DistanceX", -1, 1, 0, 3, 2.5),
])
pocket4 = doc.addObject("PartDesign::Pocket", "Pocket003")
body.addObject(pocket4)
pocket4.Profile = sketch6
pocket4.Length = 2
pocket4.Reversed = True

doc.recompute()
